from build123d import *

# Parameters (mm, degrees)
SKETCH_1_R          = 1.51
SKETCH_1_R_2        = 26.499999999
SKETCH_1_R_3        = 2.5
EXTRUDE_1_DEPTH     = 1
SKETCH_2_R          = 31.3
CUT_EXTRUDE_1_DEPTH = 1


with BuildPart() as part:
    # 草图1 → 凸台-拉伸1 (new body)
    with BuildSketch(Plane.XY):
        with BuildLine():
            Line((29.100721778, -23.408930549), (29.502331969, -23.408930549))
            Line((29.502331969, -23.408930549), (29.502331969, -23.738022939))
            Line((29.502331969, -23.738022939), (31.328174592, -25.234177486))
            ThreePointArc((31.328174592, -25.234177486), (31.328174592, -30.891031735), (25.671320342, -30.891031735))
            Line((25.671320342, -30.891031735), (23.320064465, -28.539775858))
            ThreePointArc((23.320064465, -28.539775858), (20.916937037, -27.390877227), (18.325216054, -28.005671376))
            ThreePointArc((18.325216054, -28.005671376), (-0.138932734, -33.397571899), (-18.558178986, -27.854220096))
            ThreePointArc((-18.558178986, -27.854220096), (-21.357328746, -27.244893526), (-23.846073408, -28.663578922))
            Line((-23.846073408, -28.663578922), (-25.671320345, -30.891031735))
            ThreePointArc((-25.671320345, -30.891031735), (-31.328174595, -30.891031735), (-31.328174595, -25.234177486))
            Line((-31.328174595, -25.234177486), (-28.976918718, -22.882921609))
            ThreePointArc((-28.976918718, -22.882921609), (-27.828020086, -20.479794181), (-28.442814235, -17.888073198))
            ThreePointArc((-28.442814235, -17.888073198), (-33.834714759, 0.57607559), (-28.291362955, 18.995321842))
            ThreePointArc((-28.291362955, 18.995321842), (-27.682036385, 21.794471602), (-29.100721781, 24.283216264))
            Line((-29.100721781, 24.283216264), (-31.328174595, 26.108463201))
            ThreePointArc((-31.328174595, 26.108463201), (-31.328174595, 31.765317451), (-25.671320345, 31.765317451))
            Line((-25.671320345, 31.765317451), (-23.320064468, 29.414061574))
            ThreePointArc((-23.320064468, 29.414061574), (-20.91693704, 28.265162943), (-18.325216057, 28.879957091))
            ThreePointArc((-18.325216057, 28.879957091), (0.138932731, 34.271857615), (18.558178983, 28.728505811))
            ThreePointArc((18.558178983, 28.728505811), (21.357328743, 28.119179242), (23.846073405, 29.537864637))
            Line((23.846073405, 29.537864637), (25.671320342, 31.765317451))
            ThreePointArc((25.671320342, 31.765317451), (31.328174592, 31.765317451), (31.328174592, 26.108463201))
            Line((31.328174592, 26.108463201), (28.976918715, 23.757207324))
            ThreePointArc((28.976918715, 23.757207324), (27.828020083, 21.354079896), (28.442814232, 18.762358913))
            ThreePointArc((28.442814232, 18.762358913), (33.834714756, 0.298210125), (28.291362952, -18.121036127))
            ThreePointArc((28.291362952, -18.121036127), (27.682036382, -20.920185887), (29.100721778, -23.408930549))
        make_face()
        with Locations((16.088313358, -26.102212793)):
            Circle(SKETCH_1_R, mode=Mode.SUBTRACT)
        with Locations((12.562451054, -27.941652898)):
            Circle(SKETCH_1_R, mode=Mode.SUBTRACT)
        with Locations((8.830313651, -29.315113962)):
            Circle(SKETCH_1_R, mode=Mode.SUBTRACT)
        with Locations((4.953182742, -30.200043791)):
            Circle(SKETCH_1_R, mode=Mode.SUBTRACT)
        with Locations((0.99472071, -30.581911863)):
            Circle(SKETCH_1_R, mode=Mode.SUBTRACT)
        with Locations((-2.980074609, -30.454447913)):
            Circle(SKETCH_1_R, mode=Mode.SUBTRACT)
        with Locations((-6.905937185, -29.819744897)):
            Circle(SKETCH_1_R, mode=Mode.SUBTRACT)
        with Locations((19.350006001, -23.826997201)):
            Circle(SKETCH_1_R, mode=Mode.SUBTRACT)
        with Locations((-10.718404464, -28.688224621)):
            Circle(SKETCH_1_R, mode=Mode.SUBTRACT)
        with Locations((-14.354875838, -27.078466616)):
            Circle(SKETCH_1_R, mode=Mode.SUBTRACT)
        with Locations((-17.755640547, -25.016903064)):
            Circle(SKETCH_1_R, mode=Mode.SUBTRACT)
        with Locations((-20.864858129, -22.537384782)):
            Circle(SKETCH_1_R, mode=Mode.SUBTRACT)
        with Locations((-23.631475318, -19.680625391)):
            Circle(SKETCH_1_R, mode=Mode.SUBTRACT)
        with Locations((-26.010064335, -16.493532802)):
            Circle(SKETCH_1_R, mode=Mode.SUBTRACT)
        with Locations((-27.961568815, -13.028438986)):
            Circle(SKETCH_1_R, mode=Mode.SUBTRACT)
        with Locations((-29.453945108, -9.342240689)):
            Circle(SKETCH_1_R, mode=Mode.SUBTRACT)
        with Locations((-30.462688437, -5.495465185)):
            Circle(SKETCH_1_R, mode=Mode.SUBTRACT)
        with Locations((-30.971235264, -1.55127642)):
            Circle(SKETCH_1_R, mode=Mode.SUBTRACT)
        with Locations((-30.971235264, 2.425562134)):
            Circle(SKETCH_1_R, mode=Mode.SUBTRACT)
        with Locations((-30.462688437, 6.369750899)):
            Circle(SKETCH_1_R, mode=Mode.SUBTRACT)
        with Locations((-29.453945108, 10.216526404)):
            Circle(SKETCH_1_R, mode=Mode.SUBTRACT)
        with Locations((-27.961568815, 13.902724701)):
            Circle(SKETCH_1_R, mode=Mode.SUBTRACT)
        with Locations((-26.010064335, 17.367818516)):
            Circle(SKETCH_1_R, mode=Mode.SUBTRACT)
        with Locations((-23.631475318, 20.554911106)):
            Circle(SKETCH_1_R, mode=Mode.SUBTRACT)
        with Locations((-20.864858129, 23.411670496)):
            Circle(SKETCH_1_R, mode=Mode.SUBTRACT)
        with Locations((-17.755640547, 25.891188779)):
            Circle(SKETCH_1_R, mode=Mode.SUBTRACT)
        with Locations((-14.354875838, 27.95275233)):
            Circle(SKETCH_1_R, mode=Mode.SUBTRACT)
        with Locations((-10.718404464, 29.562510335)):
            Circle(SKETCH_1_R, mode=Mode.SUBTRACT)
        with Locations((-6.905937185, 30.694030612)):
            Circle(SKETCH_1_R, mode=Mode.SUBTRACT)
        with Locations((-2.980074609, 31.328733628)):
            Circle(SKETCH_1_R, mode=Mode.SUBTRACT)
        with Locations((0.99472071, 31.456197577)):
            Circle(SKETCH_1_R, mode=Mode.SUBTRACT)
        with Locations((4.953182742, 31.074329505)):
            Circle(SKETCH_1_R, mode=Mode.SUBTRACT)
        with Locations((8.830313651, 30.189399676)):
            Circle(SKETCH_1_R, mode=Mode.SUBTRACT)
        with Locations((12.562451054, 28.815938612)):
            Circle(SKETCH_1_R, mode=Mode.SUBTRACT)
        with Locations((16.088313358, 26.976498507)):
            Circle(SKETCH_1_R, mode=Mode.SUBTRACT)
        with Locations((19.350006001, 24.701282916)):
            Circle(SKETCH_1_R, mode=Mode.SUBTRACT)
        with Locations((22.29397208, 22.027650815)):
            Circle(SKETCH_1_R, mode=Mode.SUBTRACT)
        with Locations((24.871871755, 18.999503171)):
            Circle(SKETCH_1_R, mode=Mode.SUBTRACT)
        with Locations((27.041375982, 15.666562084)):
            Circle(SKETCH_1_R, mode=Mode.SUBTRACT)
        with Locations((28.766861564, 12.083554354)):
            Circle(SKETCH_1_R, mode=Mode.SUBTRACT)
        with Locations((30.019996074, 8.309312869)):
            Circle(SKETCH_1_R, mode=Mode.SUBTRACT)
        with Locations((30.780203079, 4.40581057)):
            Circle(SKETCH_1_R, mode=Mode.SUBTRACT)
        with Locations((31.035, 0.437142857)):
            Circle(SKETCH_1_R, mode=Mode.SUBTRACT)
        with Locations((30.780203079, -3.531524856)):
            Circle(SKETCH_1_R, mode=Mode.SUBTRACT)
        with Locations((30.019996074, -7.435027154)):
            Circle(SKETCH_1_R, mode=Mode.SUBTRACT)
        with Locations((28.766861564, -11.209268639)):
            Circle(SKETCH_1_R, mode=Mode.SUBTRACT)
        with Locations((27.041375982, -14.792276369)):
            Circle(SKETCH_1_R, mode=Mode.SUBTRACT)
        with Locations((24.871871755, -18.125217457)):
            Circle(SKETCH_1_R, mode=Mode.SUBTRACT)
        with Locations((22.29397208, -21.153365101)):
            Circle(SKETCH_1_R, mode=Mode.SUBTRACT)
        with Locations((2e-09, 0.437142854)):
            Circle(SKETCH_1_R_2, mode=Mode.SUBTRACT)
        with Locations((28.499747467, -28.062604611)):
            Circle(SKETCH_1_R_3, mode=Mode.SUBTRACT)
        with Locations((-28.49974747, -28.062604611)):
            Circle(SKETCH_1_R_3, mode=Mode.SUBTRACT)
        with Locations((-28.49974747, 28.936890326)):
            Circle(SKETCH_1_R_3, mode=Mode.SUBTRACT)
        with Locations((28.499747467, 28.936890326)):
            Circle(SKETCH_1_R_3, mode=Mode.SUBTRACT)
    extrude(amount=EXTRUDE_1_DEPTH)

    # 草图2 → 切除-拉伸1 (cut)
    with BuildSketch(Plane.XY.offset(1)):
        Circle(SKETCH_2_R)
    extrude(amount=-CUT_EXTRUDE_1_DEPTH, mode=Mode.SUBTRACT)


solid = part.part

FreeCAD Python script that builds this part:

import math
import FreeCAD as App
import Part
import Sketcher
Q = App.Units.Quantity

doc = App.newDocument("Part")
params = doc.addObject("Spreadsheet::Sheet", "Params")
for row, (alias, value) in enumerate([
    ("sketch1_diameter", "5 mm"),
    ("sketch1_diameter2", "53 mm"),
    ("sketch1_radius", "4 mm"),
    ("sketch1_diameter3", "3.02 mm"),
    ("pad1_length", "1 mm"),
    ("sketch2_diameter", "62.6 mm"),
    ("pocket1_length", "1 mm"),
], start=1):
    params.set(f"A{row}", alias)
    params.set(f"B{row}", "=" + value)
    params.setAlias(f"B{row}", alias)

body = doc.addObject("PartDesign::Body", "Body")

# Sketch on XY plane
sketch1 = body.newObject("Sketcher::SketchObject", "Sketch")
sketch1.AttachmentSupport = (doc.getObject("XY_Plane"), [""])
sketch1.MapMode = "FlatFace"
sketch1.addGeometry(Part.LineSegment(App.Vector(29.502332, -23.408931, 0), App.Vector(29.100722, -23.408931, 0)), False)
sketch1.addGeometry(Part.ArcOfCircle(Part.Circle(App.Vector(31.63599, -20.314998, 0), App.Vector(0, 0, 1), 4), math.radians(146.736478), math.radians(230.6677)), False)
sketch1.addGeometry(Part.ArcOfCircle(Part.Circle(App.Vector(0, 0.437143, 0), App.Vector(0, 0, 1), 33.835), math.radians(-33.263522), math.radians(32.792987)), False)
sketch1.addGeometry(Part.ArcOfCircle(Part.Circle(App.Vector(31.805346, 20.92878, 0), App.Vector(0, 0, 1), 4), math.radians(135), math.radians(212.792987)), False)
sketch1.addGeometry(Part.LineSegment(App.Vector(28.976919, 23.757207, 0), App.Vector(31.328175, 26.108463, 0)), False)
sketch1.addGeometry(Part.ArcOfCircle(Part.Circle(App.Vector(28.499747, 28.93689, 0), App.Vector(0, 0, 1), 4), math.radians(-45), math.radians(135)), False)
sketch1.addGeometry(Part.LineSegment(App.Vector(25.67132, 31.765317, 0), App.Vector(23.846073, 29.537865, 0)), False)
sketch1.addGeometry(Part.ArcOfCircle(Part.Circle(App.Vector(20.752141, 32.073133, 0), App.Vector(0, 0, 1), 4), math.radians(-123.263522), math.radians(-39.3323)), False)
sketch1.addGeometry(Part.ArcOfCircle(Part.Circle(App.Vector(0, 0.437143, 0), App.Vector(0, 0, 1), 33.835), math.radians(56.736478), math.radians(122.792987)), False)
sketch1.addGeometry(Part.ArcOfCircle(Part.Circle(App.Vector(-20.491637, 32.242489, 0), App.Vector(0, 0, 1), 4), math.radians(-135), math.radians(-57.207013)), False)
sketch1.addGeometry(Part.LineSegment(App.Vector(-23.320064, 29.414062, 0), App.Vector(-25.67132, 31.765317, 0)), False)
sketch1.addGeometry(Part.ArcOfCircle(Part.Circle(App.Vector(-28.499747, 28.93689, 0), App.Vector(0, 0, 1), 4), math.radians(45), math.radians(225)), False)
sketch1.addGeometry(Part.LineSegment(App.Vector(-31.328175, 26.108463, 0), App.Vector(-29.100722, 24.283216, 0)), False)
sketch1.addGeometry(Part.ArcOfCircle(Part.Circle(App.Vector(-31.63599, 21.189284, 0), App.Vector(0, 0, 1), 4), math.radians(-33.263522), math.radians(50.6677)), False)
sketch1.addGeometry(Part.ArcOfCircle(Part.Circle(App.Vector(0, 0.437143, 0), App.Vector(0, 0, 1), 33.835), math.radians(146.736478), math.radians(212.792987)), False)
sketch1.addGeometry(Part.ArcOfCircle(Part.Circle(App.Vector(-31.805346, -20.054494, 0), App.Vector(0, 0, 1), 4), math.radians(-45), math.radians(32.792987)), False)
sketch1.addGeometry(Part.LineSegment(App.Vector(-28.976919, -22.882922, 0), App.Vector(-31.328175, -25.234177, 0)), False)
sketch1.addGeometry(Part.ArcOfCircle(Part.Circle(App.Vector(-28.499747, -28.062605, 0), App.Vector(0, 0, 1), 4), math.radians(135), math.radians(315)), False)
sketch1.addGeometry(Part.LineSegment(App.Vector(-25.67132, -30.891032, 0), App.Vector(-23.846073, -28.663579, 0)), False)
sketch1.addGeometry(Part.ArcOfCircle(Part.Circle(App.Vector(-20.752141, -31.198847, 0), App.Vector(0, 0, 1), 4), math.radians(56.736478), math.radians(140.6677)), False)
sketch1.addGeometry(Part.ArcOfCircle(Part.Circle(App.Vector(0, 0.437143, 0), App.Vector(0, 0, 1), 33.835), math.radians(-123.263522), math.radians(-57.207013)), False)
sketch1.addGeometry(Part.ArcOfCircle(Part.Circle(App.Vector(20.491637, -31.368203, 0), App.Vector(0, 0, 1), 4), math.radians(45), math.radians(122.792987)), False)
sketch1.addGeometry(Part.LineSegment(App.Vector(23.320064, -28.539776, 0), App.Vector(25.67132, -30.891032, 0)), False)
sketch1.addGeometry(Part.ArcOfCircle(Part.Circle(App.Vector(28.499747, -28.062605, 0), App.Vector(0, 0, 1), 4), math.radians(-135), math.radians(45)), False)
sketch1.addGeometry(Part.LineSegment(App.Vector(31.328175, -25.234177, 0), App.Vector(29.502332, -23.738023, 0)), False)
sketch1.addGeometry(Part.LineSegment(App.Vector(29.502332, -23.738023, 0), App.Vector(29.502332, -23.408931, 0)), False)
sketch1.addGeometry(Part.Circle(App.Vector(28.499747, -28.062605, 0), App.Vector(0, 0, 1), 2.5), False)
sketch1.addGeometry(Part.Circle(App.Vector(24.871872, -18.125217, 0), App.Vector(0, 0, 1), 1.51), False)
sketch1.addGeometry(Part.Circle(App.Vector(22.293972, -21.153365, 0), App.Vector(0, 0, 1), 1.51), False)
sketch1.addGeometry(Part.Circle(App.Vector(19.350006, -23.826997, 0), App.Vector(0, 0, 1), 1.51), False)
sketch1.addGeometry(Part.Circle(App.Vector(8.830314, -29.315114, 0), App.Vector(0, 0, 1), 1.51), False)
sketch1.addGeometry(Part.Circle(App.Vector(16.088313, -26.102213, 0), App.Vector(0, 0, 1), 1.51), False)
sketch1.addGeometry(Part.Circle(App.Vector(12.562451, -27.941653, 0), App.Vector(0, 0, 1), 1.51), False)
sketch1.addGeometry(Part.Circle(App.Vector(4.953183, -30.200044, 0), App.Vector(0, 0, 1), 1.51), False)
sketch1.addGeometry(Part.Circle(App.Vector(0.994721, -30.581912, 0), App.Vector(0, 0, 1), 1.51), False)
sketch1.addGeometry(Part.Circle(App.Vector(27.041376, -14.792276, 0), App.Vector(0, 0, 1), 1.51), False)
sketch1.addGeometry(Part.Circle(App.Vector(28.766862, -11.209269, 0), App.Vector(0, 0, 1), 1.51), False)
sketch1.addGeometry(Part.Circle(App.Vector(30.019996, -7.435027, 0), App.Vector(0, 0, 1), 1.51), False)
sketch1.addGeometry(Part.Circle(App.Vector(30.780203, -3.531525, 0), App.Vector(0, 0, 1), 1.51), False)
sketch1.addGeometry(Part.Circle(App.Vector(31.035, 0.437143, 0), App.Vector(0, 0, 1), 1.51), False)
sketch1.addGeometry(Part.Circle(App.Vector(-2.980075, -30.454448, 0), App.Vector(0, 0, 1), 1.51), False)
sketch1.addGeometry(Part.Circle(App.Vector(-6.905937, -29.819745, 0), App.Vector(0, 0, 1), 1.51), False)
sketch1.addGeometry(Part.Circle(App.Vector(-10.718404, -28.688225, 0), App.Vector(0, 0, 1), 1.51), False)
sketch1.addGeometry(Part.Circle(App.Vector(-14.354876, -27.078467, 0), App.Vector(0, 0, 1), 1.51), False)
sketch1.addGeometry(Part.Circle(App.Vector(-17.755641, -25.016903, 0), App.Vector(0, 0, 1), 1.51), False)
sketch1.addGeometry(Part.Circle(App.Vector(-28.499747, -28.062605, 0), App.Vector(0, 0, 1), 2.5), False)
sketch1.addGeometry(Part.Circle(App.Vector(-20.864858, -22.537385, 0), App.Vector(0, 0, 1), 1.51), False)
sketch1.addGeometry(Part.Circle(App.Vector(-23.631475, -19.680625, 0), App.Vector(0, 0, 1), 1.51), False)
sketch1.addGeometry(Part.Circle(App.Vector(-26.010064, -16.493533, 0), App.Vector(0, 0, 1), 1.51), False)
sketch1.addGeometry(Part.Circle(App.Vector(0, 0.437143, 0), App.Vector(0, 0, 1), 26.5), False)
sketch1.addGeometry(Part.Circle(App.Vector(-27.961569, -13.028439, 0), App.Vector(0, 0, 1), 1.51), False)
sketch1.addGeometry(Part.Circle(App.Vector(-29.453945, -9.342241, 0), App.Vector(0, 0, 1), 1.51), False)
sketch1.addGeometry(Part.Circle(App.Vector(-30.462688, -5.495465, 0), App.Vector(0, 0, 1), 1.51), False)
sketch1.addGeometry(Part.Circle(App.Vector(-30.971235, -1.551276, 0), App.Vector(0, 0, 1), 1.51), False)
sketch1.addGeometry(Part.Circle(App.Vector(30.780203, 4.405811, 0), App.Vector(0, 0, 1), 1.51), False)
sketch1.addGeometry(Part.Circle(App.Vector(30.019996, 8.309313, 0), App.Vector(0, 0, 1), 1.51), False)
sketch1.addGeometry(Part.Circle(App.Vector(28.766862, 12.083554, 0), App.Vector(0, 0, 1), 1.51), False)
sketch1.addGeometry(Part.Circle(App.Vector(27.041376, 15.666562, 0), App.Vector(0, 0, 1), 1.51), False)
sketch1.addGeometry(Part.Circle(App.Vector(24.871872, 18.999503, 0), App.Vector(0, 0, 1), 1.51), False)
sketch1.addGeometry(Part.Circle(App.Vector(22.293972, 22.027651, 0), App.Vector(0, 0, 1), 1.51), False)
sketch1.addGeometry(Part.Circle(App.Vector(19.350006, 24.701283, 0), App.Vector(0, 0, 1), 1.51), False)
sketch1.addGeometry(Part.Circle(App.Vector(28.499747, 28.93689, 0), App.Vector(0, 0, 1), 2.5), False)
sketch1.addGeometry(Part.Circle(App.Vector(16.088313, 26.976499, 0), App.Vector(0, 0, 1), 1.51), False)
sketch1.addGeometry(Part.Circle(App.Vector(12.562451, 28.815939, 0), App.Vector(0, 0, 1), 1.51), False)
sketch1.addGeometry(Part.Circle(App.Vector(8.830314, 30.1894, 0), App.Vector(0, 0, 1), 1.51), False)
sketch1.addGeometry(Part.Circle(App.Vector(4.953183, 31.07433, 0), App.Vector(0, 0, 1), 1.51), False)
sketch1.addGeometry(Part.Circle(App.Vector(0.994721, 31.456198, 0), App.Vector(0, 0, 1), 1.51), False)
sketch1.addGeometry(Part.Circle(App.Vector(-30.971235, 2.425562, 0), App.Vector(0, 0, 1), 1.51), False)
sketch1.addGeometry(Part.Circle(App.Vector(-30.462688, 6.369751, 0), App.Vector(0, 0, 1), 1.51), False)
sketch1.addGeometry(Part.Circle(App.Vector(-29.453945, 10.216526, 0), App.Vector(0, 0, 1), 1.51), False)
sketch1.addGeometry(Part.Circle(App.Vector(-27.961569, 13.902725, 0), App.Vector(0, 0, 1), 1.51), False)
sketch1.addGeometry(Part.Circle(App.Vector(-2.980075, 31.328734, 0), App.Vector(0, 0, 1), 1.51), False)
sketch1.addGeometry(Part.Circle(App.Vector(-6.905937, 30.694031, 0), App.Vector(0, 0, 1), 1.51), False)
sketch1.addGeometry(Part.Circle(App.Vector(-14.354876, 27.952752, 0), App.Vector(0, 0, 1), 1.51), False)
sketch1.addGeometry(Part.Circle(App.Vector(-10.718404, 29.56251, 0), App.Vector(0, 0, 1), 1.51), False)
sketch1.addGeometry(Part.Circle(App.Vector(-23.631475, 20.554911, 0), App.Vector(0, 0, 1), 1.51), False)
sketch1.addGeometry(Part.Circle(App.Vector(-20.864858, 23.41167, 0), App.Vector(0, 0, 1), 1.51), False)
sketch1.addGeometry(Part.Circle(App.Vector(-26.010064, 17.367819, 0), App.Vector(0, 0, 1), 1.51), False)
sketch1.addGeometry(Part.Circle(App.Vector(-17.755641, 25.891189, 0), App.Vector(0, 0, 1), 1.51), False)
sketch1.addGeometry(Part.Circle(App.Vector(-28.499747, 28.93689, 0), App.Vector(0, 0, 1), 2.5), False)
sketch1.addConstraint(Sketcher.Constraint("Coincident", 0, 2, 1, 2))
sketch1.addConstraint(Sketcher.Constraint("Tangent", 1, 1, 2, 1))
sketch1.addConstraint(Sketcher.Constraint("Tangent", 2, 2, 3, 2))
sketch1.addConstraint(Sketcher.Constraint("Tangent", 3, 1, 4, 1))
sketch1.addConstraint(Sketcher.Constraint("Tangent", 4, 2, 5, 1))
sketch1.addConstraint(Sketcher.Constraint("Coincident", 5, 2, 6, 1))
sketch1.addConstraint(Sketcher.Constraint("Tangent", 6, 2, 7, 2))
sketch1.addConstraint(Sketcher.Constraint("Tangent", 7, 1, 8, 1))
sketch1.addConstraint(Sketcher.Constraint("Tangent", 8, 2, 9, 2))
sketch1.addConstraint(Sketcher.Constraint("Tangent", 9, 1, 10, 1))
sketch1.addConstraint(Sketcher.Constraint("Tangent", 10, 2, 11, 1))
sketch1.addConstraint(Sketcher.Constraint("Coincident", 11, 2, 12, 1))
sketch1.addConstraint(Sketcher.Constraint("Tangent", 12, 2, 13, 2))
sketch1.addConstraint(Sketcher.Constraint("Tangent", 13, 1, 14, 1))
sketch1.addConstraint(Sketcher.Constraint("Tangent", 14, 2, 15, 2))
sketch1.addConstraint(Sketcher.Constraint("Tangent", 15, 1, 16, 1))
sketch1.addConstraint(Sketcher.Constraint("Tangent", 16, 2, 17, 1))
sketch1.addConstraint(Sketcher.Constraint("Coincident", 17, 2, 18, 1))
sketch1.addConstraint(Sketcher.Constraint("Tangent", 18, 2, 19, 2))
sketch1.addConstraint(Sketcher.Constraint("Tangent", 19, 1, 20, 1))
sketch1.addConstraint(Sketcher.Constraint("Tangent", 20, 2, 21, 2))
sketch1.addConstraint(Sketcher.Constraint("Tangent", 21, 1, 22, 1))
sketch1.addConstraint(Sketcher.Constraint("Tangent", 22, 2, 23, 1))
sketch1.addConstraint(Sketcher.Constraint("Coincident", 23, 2, 24, 1))
sketch1.addConstraint(Sketcher.Constraint("Coincident", 24, 2, 25, 1))
sketch1.addConstraint(Sketcher.Constraint("Coincident", 25, 2, 0, 1))
sketch1.addConstraint(Sketcher.Constraint("Horizontal", 0))
sketch1.addConstraint(Sketcher.Constraint("Vertical", 25))
sketch1.addConstraint(Sketcher.Constraint("Coincident", 8, 3, 2, 3))
sketch1.addConstraint(Sketcher.Constraint("Coincident", 14, 3, 2, 3))
sketch1.addConstraint(Sketcher.Constraint("Coincident", 20, 3, 2, 3))
sketch1.addConstraint(Sketcher.Constraint("Coincident", 26, 3, 23, 3))
sketch1.addConstraint(Sketcher.Constraint("Coincident", 45, 3, 17, 3))
sketch1.addConstraint(Sketcher.Constraint("Coincident", 49, 3, 2, 3))
sketch1.addConstraint(Sketcher.Constraint("Coincident", 61, 3, 5, 3))
sketch1.addConstraint(Sketcher.Constraint("Coincident", 79, 3, 11, 3))
sketch1.addConstraint(Sketcher.Constraint("Equal", 1, 3))
sketch1.addConstraint(Sketcher.Constraint("Equal", 3, 5))
sketch1.addConstraint(Sketcher.Constraint("Equal", 5, 7))
sketch1.addConstraint(Sketcher.Constraint("Equal", 2, 8))
sketch1.addConstraint(Sketcher.Constraint("Equal", 7, 9))
sketch1.addConstraint(Sketcher.Constraint("Equal", 9, 11))
sketch1.addConstraint(Sketcher.Constraint("Equal", 11, 13))
sketch1.addConstraint(Sketcher.Constraint("Equal", 8, 14))
sketch1.addConstraint(Sketcher.Constraint("Equal", 13, 15))
sketch1.addConstraint(Sketcher.Constraint("Equal", 15, 17))
sketch1.addConstraint(Sketcher.Constraint("Equal", 17, 19))
sketch1.addConstraint(Sketcher.Constraint("Equal", 14, 20))
sketch1.addConstraint(Sketcher.Constraint("Equal", 19, 21))
sketch1.addConstraint(Sketcher.Constraint("Equal", 21, 23))
sketch1.addConstraint(Sketcher.Constraint("Equal", 27, 28))
sketch1.addConstraint(Sketcher.Constraint("Equal", 28, 29))
sketch1.addConstraint(Sketcher.Constraint("Equal", 29, 30))
sketch1.addConstraint(Sketcher.Constraint("Equal", 30, 31))
sketch1.addConstraint(Sketcher.Constraint("Equal", 31, 32))
sketch1.addConstraint(Sketcher.Constraint("Equal", 32, 33))
sketch1.addConstraint(Sketcher.Constraint("Equal", 33, 34))
sketch1.addConstraint(Sketcher.Constraint("Equal", 34, 35))
sketch1.addConstraint(Sketcher.Constraint("Equal", 35, 36))
sketch1.addConstraint(Sketcher.Constraint("Equal", 36, 37))
sketch1.addConstraint(Sketcher.Constraint("Equal", 37, 38))
sketch1.addConstraint(Sketcher.Constraint("Equal", 38, 39))
sketch1.addConstraint(Sketcher.Constraint("Equal", 39, 40))
sketch1.addConstraint(Sketcher.Constraint("Equal", 40, 41))
sketch1.addConstraint(Sketcher.Constraint("Equal", 41, 42))
sketch1.addConstraint(Sketcher.Constraint("Equal", 42, 43))
sketch1.addConstraint(Sketcher.Constraint("Equal", 43, 44))
sketch1.addConstraint(Sketcher.Constraint("Equal", 26, 45))
sketch1.addConstraint(Sketcher.Constraint("Equal", 44, 46))
sketch1.addConstraint(Sketcher.Constraint("Equal", 46, 47))
sketch1.addConstraint(Sketcher.Constraint("Equal", 47, 48))
sketch1.addConstraint(Sketcher.Constraint("Equal", 48, 50))
sketch1.addConstraint(Sketcher.Constraint("Equal", 50, 51))
sketch1.addConstraint(Sketcher.Constraint("Equal", 51, 52))
sketch1.addConstraint(Sketcher.Constraint("Equal", 52, 53))
sketch1.addConstraint(Sketcher.Constraint("Equal", 53, 54))
sketch1.addConstraint(Sketcher.Constraint("Equal", 54, 55))
sketch1.addConstraint(Sketcher.Constraint("Equal", 55, 56))
sketch1.addConstraint(Sketcher.Constraint("Equal", 56, 57))
sketch1.addConstraint(Sketcher.Constraint("Equal", 57, 58))
sketch1.addConstraint(Sketcher.Constraint("Equal", 58, 59))
sketch1.addConstraint(Sketcher.Constraint("Equal", 59, 60))
sketch1.addConstraint(Sketcher.Constraint("Equal", 45, 61))
sketch1.addConstraint(Sketcher.Constraint("Equal", 60, 62))
sketch1.addConstraint(Sketcher.Constraint("Equal", 62, 63))
sketch1.addConstraint(Sketcher.Constraint("Equal", 63, 64))
sketch1.addConstraint(Sketcher.Constraint("Equal", 64, 65))
sketch1.addConstraint(Sketcher.Constraint("Equal", 65, 66))
sketch1.addConstraint(Sketcher.Constraint("Equal", 66, 67))
sketch1.addConstraint(Sketcher.Constraint("Equal", 67, 68))
sketch1.addConstraint(Sketcher.Constraint("Equal", 68, 69))
sketch1.addConstraint(Sketcher.Constraint("Equal", 69, 70))
sketch1.addConstraint(Sketcher.Constraint("Equal", 70, 71))
sketch1.addConstraint(Sketcher.Constraint("Equal", 71, 72))
sketch1.addConstraint(Sketcher.Constraint("Equal", 72, 73))
sketch1.addConstraint(Sketcher.Constraint("Equal", 73, 74))
sketch1.addConstraint(Sketcher.Constraint("Equal", 74, 75))
sketch1.addConstraint(Sketcher.Constraint("Equal", 75, 76))
sketch1.addConstraint(Sketcher.Constraint("Equal", 76, 77))
sketch1.addConstraint(Sketcher.Constraint("Equal", 77, 78))
sketch1.addConstraint(Sketcher.Constraint("Equal", 61, 79))
sketch1.addConstraint(Sketcher.Constraint("Symmetric", 5, 3, 11, 3, -2))
sketch1.addConstraint(Sketcher.Constraint("Symmetric", 17, 3, 23, 3, -2))
sketch1.addConstraint(Sketcher.Constraint("PointOnObject", 2, 3, -2))
sketch1.addConstraint(Sketcher.Constraint("Perpendicular", 4, 10))
sketch1.addConstraint(Sketcher.Constraint("Perpendicular", 6, 12))
sketch1.addConstraint(Sketcher.Constraint("Perpendicular", 10, 16))
sketch1.addConstraint(Sketcher.Constraint("Perpendicular", 12, 18))
sketch1.addConstraint(Sketcher.Constraint("Perpendicular", 16, 22))
sketch1.addConstraint(Sketcher.Constraint("Perpendicular", 18, 24))
sketch1.addConstraint(Sketcher.Constraint("Horizontal", 20, 3, 39, 3))
sketch1.addConstraint(Sketcher.Constraint("Horizontal", 5, 2, 10, 2))
sketch1.addConstraint(Sketcher.Constraint("Horizontal", 4, 2, 11, 2))
sketch1.addConstraint(Sketcher.Constraint("Horizontal", 17, 2, 22, 2))
sketch1.addConstraint(Sketcher.Constraint("Horizontal", 16, 2, 23, 2))
sketch1.addConstraint(Sketcher.Constraint("Vertical", 11, 3, 17, 3))
sketch1.addConstraint(Sketcher.Constraint("Vertical", 38, 3, 54, 3))
sketch1.addConstraint(Sketcher.Constraint("Vertical", 37, 3, 55, 3))
sketch1.addConstraint(Sketcher.Constraint("Vertical", 36, 3, 56, 3))
sketch1.addConstraint(Sketcher.Constraint("Vertical", 35, 3, 57, 3))
sketch1.addConstraint(Sketcher.Constraint("Vertical", 27, 3, 58, 3))
sketch1.addConstraint(Sketcher.Constraint("Vertical", 28, 3, 59, 3))
sketch1.addConstraint(Sketcher.Constraint("Vertical", 29, 3, 60, 3))
sketch1.addConstraint(Sketcher.Constraint("Vertical", 31, 3, 62, 3))
sketch1.addConstraint(Sketcher.Constraint("Vertical", 32, 3, 63, 3))
sketch1.addConstraint(Sketcher.Constraint("Vertical", 30, 3, 64, 3))
sketch1.addConstraint(Sketcher.Constraint("Vertical", 33, 3, 65, 3))
sketch1.addConstraint(Sketcher.Constraint("Vertical", 34, 3, 66, 3))
sketch1.addConstraint(Sketcher.Constraint("Vertical", 53, 3, 67, 3))
sketch1.addConstraint(Sketcher.Constraint("Vertical", 52, 3, 68, 3))
sketch1.addConstraint(Sketcher.Constraint("Vertical", 51, 3, 69, 3))
sketch1.addConstraint(Sketcher.Constraint("Vertical", 50, 3, 70, 3))
sketch1.addConstraint(Sketcher.Constraint("Vertical", 40, 3, 71, 3))
sketch1.addConstraint(Sketcher.Constraint("Vertical", 41, 3, 72, 3))
sketch1.addConstraint(Sketcher.Constraint("Vertical", 43, 3, 73, 3))
sketch1.addConstraint(Sketcher.Constraint("Vertical", 42, 3, 74, 3))
sketch1.addConstraint(Sketcher.Constraint("Vertical", 47, 3, 75, 3))
sketch1.addConstraint(Sketcher.Constraint("Vertical", 46, 3, 76, 3))
sketch1.addConstraint(Sketcher.Constraint("Vertical", 48, 3, 77, 3))
sketch1.addConstraint(Sketcher.Constraint("Vertical", 44, 3, 78, 3))
sketch1.addConstraint(Sketcher.Constraint("Equal", 4, 10))
sketch1.addConstraint(Sketcher.Constraint("Equal", 10, 16))
sketch1.addConstraint(Sketcher.Constraint("Diameter", 26, Q("5 mm")))
sketch1.addConstraint(Sketcher.Constraint("Diameter", 49, Q("53 mm")))
sketch1.addConstraint(Sketcher.Constraint("Radius", 1, Q("4 mm")))
sketch1.addConstraint(Sketcher.Constraint("Diameter", 27, Q("3.02 mm")))
sketch1.addConstraint(Sketcher.Constraint("Angle", 4, Q("45 deg")))
sketch1.addConstraint(Sketcher.Constraint("Radius", 2, Q("33.835 mm")))
sketch1.addConstraint(Sketcher.Constraint("DistanceY", 1, 3, -1, 1, Q("20.314998 mm")))
sketch1.addConstraint(Sketcher.Constraint("DistanceX", -1, 1, 39, 3, Q("31.035 mm")))
sketch1.addConstraint(Sketcher.Constraint("DistanceX", 0, 2, 0, 1, Q("0.40161 mm")))
sketch1.addConstraint(Sketcher.Constraint("DistanceY", -1, 1, 62, 3, Q("26.976499 mm")))
sketch1.addConstraint(Sketcher.Constraint("DistanceY", -1, 1, 64, 3, Q("30.1894 mm")))
sketch1.addConstraint(Sketcher.Constraint("Distance", 6, Q("2.87977 mm")))
sketch1.addConstraint(Sketcher.Constraint("DistanceY", 25, 1, 25, 2, Q("0.329092 mm")))
sketch1.addConstraint(Sketcher.Constraint("DistanceX", -1, 1, 1, 3, Q("31.63599 mm")))
sketch1.addConstraint(Sketcher.Constraint("DistanceX", -1, 1, 27, 3, Q("24.871872 mm")))
sketch1.addConstraint(Sketcher.Constraint("DistanceX", -1, 1, 32, 3, Q("12.562451 mm")))
sketch1.addConstraint(Sketcher.Constraint("DistanceX", -1, 1, 34, 3, Q("0.994721 mm")))
sketch1.addConstraint(Sketcher.Constraint("DistanceY", 34, 3, -1, 1, Q("30.581912 mm")))
sketch1.addConstraint(Sketcher.Constraint("DistanceX", -1, 1, 36, 3, Q("28.766862 mm")))
sketch1.addConstraint(Sketcher.Constraint("DistanceY", 36, 3, -1, 1, Q("11.209269 mm")))
sketch1.addConstraint(Sketcher.Constraint("DistanceX", 44, 3, -1, 1, Q("17.755641 mm")))
sketch1.addConstraint(Sketcher.Constraint("DistanceX", 46, 3, -1, 1, Q("20.864858 mm")))
sketch1.addConstraint(Sketcher.Constraint("DistanceX", 50, 3, -1, 1, Q("27.961569 mm")))
sketch1.addConstraint(Sketcher.Constraint("DistanceY", 50, 3, -1, 1, Q("13.028439 mm")))
sketch1.addConstraint(Sketcher.Constraint("DistanceY", 51, 3, -1, 1, Q("9.342241 mm")))
sketch1.addConstraint(Sketcher.Constraint("DistanceX", 52, 3, -1, 1, Q("30.462688 mm")))
sketch1.addConstraint(Sketcher.Constraint("DistanceY", -1, 1, 54, 3, Q("4.405811 mm")))
sketch1.addConstraint(Sketcher.Constraint("DistanceY", -1, 1, 59, 3, Q("22.027651 mm")))
sketch1.addConstraint(Sketcher.Constraint("DistanceY", -1, 1, 63, 3, Q("28.815939 mm")))
sketch1.addConstraint(Sketcher.Constraint("DistanceY", -1, 1, 65, 3, Q("31.07433 mm")))
sketch1.addConstraint(Sketcher.Constraint("DistanceY", -1, 1, 68, 3, Q("6.369751 mm")))
sketch1.addConstraint(Sketcher.Constraint("DistanceY", -1, 1, 72, 3, Q("30.694031 mm")))
sketch1.addConstraint(Sketcher.Constraint("DistanceY", -1, 1, 74, 3, Q("29.56251 mm")))
sketch1.addConstraint(Sketcher.Constraint("DistanceY", -1, 1, 75, 3, Q("20.554911 mm")))
sketch1.addConstraint(Sketcher.Constraint("DistanceY", -1, 1, 76, 3, Q("23.41167 mm")))
sketch1.addConstraint(Sketcher.Constraint("DistanceY", -1, 1, 77, 3, Q("17.367819 mm")))
sketch1.addConstraint(Sketcher.Constraint("DistanceY", -1, 1, 78, 3, Q("25.891189 mm")))
sketch1.addConstraint(Sketcher.Constraint("DistanceX", -1, 1, 0, 2, Q("29.100722 mm")))
sketch1.addConstraint(Sketcher.Constraint("DistanceY", 27, 3, -1, 1, Q("18.125217 mm")))
sketch1.addConstraint(Sketcher.Constraint("DistanceX", -1, 1, 28, 3, Q("22.293972 mm")))
sketch1.addConstraint(Sketcher.Constraint("DistanceY", 28, 3, -1, 1, Q("21.153365 mm")))
sketch1.addConstraint(Sketcher.Constraint("DistanceX", -1, 1, 29, 3, Q("19.350006 mm")))
sketch1.addConstraint(Sketcher.Constraint("DistanceY", 29, 3, -1, 1, Q("23.826997 mm")))
sketch1.addConstraint(Sketcher.Constraint("DistanceX", -1, 1, 30, 3, Q("8.830314 mm")))
sketch1.addConstraint(Sketcher.Constraint("DistanceY", 30, 3, -1, 1, Q("29.315114 mm")))
sketch1.addConstraint(Sketcher.Constraint("DistanceX", -1, 1, 31, 3, Q("16.088313 mm")))
sketch1.addConstraint(Sketcher.Constraint("DistanceY", 31, 3, -1, 1, Q("26.102213 mm")))
sketch1.addConstraint(Sketcher.Constraint("DistanceY", 32, 3, -1, 1, Q("27.941653 mm")))
sketch1.addConstraint(Sketcher.Constraint("DistanceX", -1, 1, 33, 3, Q("4.953183 mm")))
sketch1.addConstraint(Sketcher.Constraint("DistanceY", 33, 3, -1, 1, Q("30.200044 mm")))
sketch1.addConstraint(Sketcher.Constraint("DistanceX", -1, 1, 35, 3, Q("27.041376 mm")))
sketch1.addConstraint(Sketcher.Constraint("DistanceY", 35, 3, -1, 1, Q("14.792276 mm")))
sketch1.addConstraint(Sketcher.Constraint("DistanceX", -1, 1, 37, 3, Q("30.019996 mm")))
sketch1.addConstraint(Sketcher.Constraint("DistanceY", 37, 3, -1, 1, Q("7.435027 mm")))
sketch1.addConstraint(Sketcher.Constraint("DistanceX", -1, 1, 38, 3, Q("30.780203 mm")))
sketch1.addConstraint(Sketcher.Constraint("DistanceY", 38, 3, -1, 1, Q("3.531525 mm")))
sketch1.addConstraint(Sketcher.Constraint("DistanceX", 40, 3, -1, 1, Q("2.980075 mm")))
sketch1.addConstraint(Sketcher.Constraint("DistanceY", 40, 3, -1, 1, Q("30.454448 mm")))
sketch1.addConstraint(Sketcher.Constraint("DistanceX", 41, 3, -1, 1, Q("6.905937 mm")))
sketch1.addConstraint(Sketcher.Constraint("DistanceY", 41, 3, -1, 1, Q("29.819745 mm")))
sketch1.addConstraint(Sketcher.Constraint("DistanceX", 42, 3, -1, 1, Q("10.718404 mm")))
sketch1.addConstraint(Sketcher.Constraint("DistanceY", 42, 3, -1, 1, Q("28.688225 mm")))
sketch1.addConstraint(Sketcher.Constraint("DistanceX", 43, 3, -1, 1, Q("14.354876 mm")))
sketch1.addConstraint(Sketcher.Constraint("DistanceY", 43, 3, -1, 1, Q("27.078467 mm")))
sketch1.addConstraint(Sketcher.Constraint("DistanceY", 44, 3, -1, 1, Q("25.016903 mm")))
sketch1.addConstraint(Sketcher.Constraint("DistanceY", 46, 3, -1, 1, Q("22.537385 mm")))
sketch1.addConstraint(Sketcher.Constraint("DistanceX", 47, 3, -1, 1, Q("23.631475 mm")))
sketch1.addConstraint(Sketcher.Constraint("DistanceY", 47, 3, -1, 1, Q("19.680625 mm")))
sketch1.addConstraint(Sketcher.Constraint("DistanceX", 48, 3, -1, 1, Q("26.010064 mm")))
sketch1.addConstraint(Sketcher.Constraint("DistanceY", 48, 3, -1, 1, Q("16.493533 mm")))
sketch1.addConstraint(Sketcher.Constraint("DistanceX", 51, 3, -1, 1, Q("29.453945 mm")))
sketch1.addConstraint(Sketcher.Constraint("DistanceY", 52, 3, -1, 1, Q("5.495465 mm")))
sketch1.addConstraint(Sketcher.Constraint("DistanceX", 53, 3, -1, 1, Q("30.971235 mm")))
sketch1.addConstraint(Sketcher.Constraint("DistanceY", 53, 3, -1, 1, Q("1.551276 mm")))
sketch1.addConstraint(Sketcher.Constraint("DistanceY", -1, 1, 55, 3, Q("8.309313 mm")))
sketch1.addConstraint(Sketcher.Constraint("DistanceY", -1, 1, 56, 3, Q("12.083554 mm")))
sketch1.addConstraint(Sketcher.Constraint("DistanceY", -1, 1, 57, 3, Q("15.666562 mm")))
sketch1.addConstraint(Sketcher.Constraint("DistanceY", -1, 1, 58, 3, Q("18.999503 mm")))
sketch1.addConstraint(Sketcher.Constraint("DistanceY", -1, 1, 60, 3, Q("24.701283 mm")))
sketch1.addConstraint(Sketcher.Constraint("DistanceY", -1, 1, 66, 3, Q("31.456198 mm")))
sketch1.addConstraint(Sketcher.Constraint("DistanceY", -1, 1, 67, 3, Q("2.425562 mm")))
sketch1.addConstraint(Sketcher.Constraint("DistanceY", -1, 1, 69, 3, Q("10.216526 mm")))
sketch1.addConstraint(Sketcher.Constraint("DistanceY", -1, 1, 70, 3, Q("13.902725 mm")))
sketch1.addConstraint(Sketcher.Constraint("DistanceY", -1, 1, 71, 3, Q("31.328734 mm")))
sketch1.addConstraint(Sketcher.Constraint("DistanceY", -1, 1, 73, 3, Q("27.952752 mm")))
sketch1.setExpression("Constraints[142]", "Params.sketch1_diameter")
sketch1.setExpression("Constraints[143]", "Params.sketch1_diameter2")
sketch1.setExpression("Constraints[144]", "Params.sketch1_radius")
sketch1.setExpression("Constraints[145]", "Params.sketch1_diameter3")
pad1 = body.newObject("PartDesign::Pad", "Pad")
pad1.Profile = sketch1
pad1.setExpression("Length", "Params.pad1_length")

# Sketch on XY plane
sketch2 = body.newObject("Sketcher::SketchObject", "Sketch001")
sketch2.AttachmentSupport = (doc.getObject("XY_Plane"), [""])
sketch2.MapMode = "FlatFace"
sketch2.AttachmentOffset = App.Placement(App.Vector(0, 0, 1), App.Rotation())
sketch2.addGeometry(Part.Circle(App.Vector(0, 0, 0), App.Vector(0, 0, 1), 31.3), False)
sketch2.addConstraint(Sketcher.Constraint("Coincident", 0, 3, -1, 1))
sketch2.addConstraint(Sketcher.Constraint("Diameter", 0, Q("62.6 mm")))
sketch2.setExpression("Constraints[1]", "Params.sketch2_diameter")
pocket1 = body.newObject("PartDesign::Pocket", "Pocket")
pocket1.Profile = sketch2
pocket1.setExpression("Length", "Params.pocket1_length")

doc.recompute()
